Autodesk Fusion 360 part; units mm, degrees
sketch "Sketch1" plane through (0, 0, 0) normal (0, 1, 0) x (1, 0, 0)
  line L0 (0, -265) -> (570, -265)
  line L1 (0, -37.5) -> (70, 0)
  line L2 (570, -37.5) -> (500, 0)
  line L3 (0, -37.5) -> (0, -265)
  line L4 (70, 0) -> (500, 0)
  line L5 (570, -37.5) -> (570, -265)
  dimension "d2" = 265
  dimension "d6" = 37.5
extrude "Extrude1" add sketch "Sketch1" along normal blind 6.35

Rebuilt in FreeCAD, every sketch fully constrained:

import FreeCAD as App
import Part
import Sketcher

V = App.Vector


def add_polygon(sketch, points):
    """Adds a closed chain of lines whose ends are joined by coincident constraints."""
    first, n = sketch.GeometryCount, len(points)
    for a, b in zip(points, points[1:] + points[:1]):
        sketch.addGeometry(Part.LineSegment(App.Vector(*a, 0), App.Vector(*b, 0)), False)
    for i in range(n):
        sketch.addConstraint(Sketcher.Constraint("Coincident", first + i, 2, first + (i + 1) % n, 1))

doc = App.newDocument("Part")
body = doc.addObject("PartDesign::Body", "Body")

# Sketch on XZ plane
sketch1 = doc.addObject("Sketcher::SketchObject", "Sketch")
body.addObject(sketch1)
sketch1.AttachmentSupport = (doc.XZ_Plane, [""])
sketch1.MapMode = "FlatFace"
add_polygon(sketch1, [(0, 37.5), (0, 265), (570, 265), (570, 37.5), (500, 0), (70, 0)])  # lines 0-5
sketch1.addConstraint(Sketcher.Constraint("Vertical", 0))
sketch1.addConstraint(Sketcher.Constraint("Horizontal", 1))
sketch1.addConstraint(Sketcher.Constraint("Vertical", 2))
sketch1.addConstraint(Sketcher.Constraint("Horizontal", 4))
sketch1.addConstraint(Sketcher.Constraint("PointOnObject", 0, 2, -2))
sketch1.addConstraint(Sketcher.Constraint("PointOnObject", 3, 2, -1))
sketch1.addConstraint(Sketcher.Constraint("Horizontal", 2, 2, 5, 2))
sketch1.addConstraint(Sketcher.Constraint("Equal", 3, 5))
sketch1.addConstraint(Sketcher.Constraint("DistanceY", -1, 1, 0, 2, 265.0))
sketch1.addConstraint(Sketcher.Constraint("DistanceY", -1, 1, 2, 2, 37.5))
sketch1.addConstraint(Sketcher.Constraint("DistanceX", 1, 1, 1, 2, 570.0))
sketch1.addConstraint(Sketcher.Constraint("DistanceX", 4, 2, 4, 1, 430.0))
pad1 = doc.addObject("PartDesign::Pad", "Pad")
body.addObject(pad1)
pad1.Profile = sketch1
pad1.Length = 6.35
pad1.Reversed = True

doc.recompute()
